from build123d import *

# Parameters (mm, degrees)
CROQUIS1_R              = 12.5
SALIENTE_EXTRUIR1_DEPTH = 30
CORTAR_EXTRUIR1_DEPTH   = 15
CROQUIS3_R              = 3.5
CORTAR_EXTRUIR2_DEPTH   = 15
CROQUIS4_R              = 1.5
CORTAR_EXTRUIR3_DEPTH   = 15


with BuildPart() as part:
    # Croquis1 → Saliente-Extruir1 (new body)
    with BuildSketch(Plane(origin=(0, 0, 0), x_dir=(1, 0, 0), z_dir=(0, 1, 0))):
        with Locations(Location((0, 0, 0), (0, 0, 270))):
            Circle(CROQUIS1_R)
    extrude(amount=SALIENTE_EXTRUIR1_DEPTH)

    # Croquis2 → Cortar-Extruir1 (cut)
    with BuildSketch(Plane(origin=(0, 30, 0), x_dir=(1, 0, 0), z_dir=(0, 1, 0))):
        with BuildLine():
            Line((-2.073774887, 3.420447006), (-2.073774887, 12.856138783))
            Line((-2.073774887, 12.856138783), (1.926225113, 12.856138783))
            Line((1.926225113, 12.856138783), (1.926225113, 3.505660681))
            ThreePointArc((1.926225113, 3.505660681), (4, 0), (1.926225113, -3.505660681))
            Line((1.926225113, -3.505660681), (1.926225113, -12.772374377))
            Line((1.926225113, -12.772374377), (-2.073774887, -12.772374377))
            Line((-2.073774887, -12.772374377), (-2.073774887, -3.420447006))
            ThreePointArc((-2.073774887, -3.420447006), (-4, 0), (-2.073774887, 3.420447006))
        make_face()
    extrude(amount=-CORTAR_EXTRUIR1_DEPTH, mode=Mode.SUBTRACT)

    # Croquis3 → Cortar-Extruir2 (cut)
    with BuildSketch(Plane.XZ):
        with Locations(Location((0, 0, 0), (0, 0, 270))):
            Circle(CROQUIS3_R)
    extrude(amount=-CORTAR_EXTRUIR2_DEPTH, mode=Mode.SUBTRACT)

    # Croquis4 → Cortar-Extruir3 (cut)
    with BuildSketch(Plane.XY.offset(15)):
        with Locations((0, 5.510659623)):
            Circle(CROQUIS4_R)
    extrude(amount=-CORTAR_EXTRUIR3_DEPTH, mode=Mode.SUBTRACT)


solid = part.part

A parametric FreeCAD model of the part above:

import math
import FreeCAD as App
import Part
import Sketcher
Q = App.Units.Quantity

doc = App.newDocument("Part")
body = doc.addObject("PartDesign::Body", "Body")

sketch1 = doc.addObject("Sketcher::SketchObject", "Sketch")
body.addObject(sketch1)
sketch1.AttachmentSupport = (doc.XZ_Plane, [""])
sketch1.MapMode = "FlatFace"
sketch1.addGeometry(Part.Circle(App.Vector(0, 0, 0), App.Vector(0, 0, 1), 12), False)
sketch1.addConstraint(Sketcher.Constraint("Coincident", 0, 3, -1, 1))
sketch1.addConstraint(Sketcher.Constraint("Diameter", 0, Q("25 mm")))
pad1 = doc.addObject("PartDesign::Pad", "Pad")
body.addObject(pad1)
pad1.Profile = sketch1
pad1.Length = 30
pad1.Reversed = True

sketch2 = doc.addObject("Sketcher::SketchObject", "Sketch001")
body.addObject(sketch2)
sketch2.AttachmentSupport = (doc.XZ_Plane, [""])
sketch2.MapMode = "FlatFace"
sketch2.AttachmentOffset = App.Placement(App.Vector(0, 0, -30), App.Rotation())
sketch2.addGeometry(Part.LineSegment(App.Vector(-2.1, -12.9, 0), App.Vector(-2.1, -3.4, 0)), False)
sketch2.addGeometry(Part.ArcOfCircle(Part.Circle(App.Vector(0, 0, 0), App.Vector(0, 0, 1), 4), math.radians(121), math.radians(239)), False)
sketch2.addGeometry(Part.LineSegment(App.Vector(-2.1, 3.4, 0), App.Vector(-2.1, 12.8, 0)), False)
sketch2.addGeometry(Part.LineSegment(App.Vector(-2.1, 12.8, 0), App.Vector(1.9, 12.8, 0)), False)
sketch2.addGeometry(Part.LineSegment(App.Vector(1.9, 12.8, 0), App.Vector(1.9, 3.5, 0)), False)
sketch2.addGeometry(Part.ArcOfCircle(Part.Circle(App.Vector(0, 0, 0), App.Vector(0, 0, 1), 4), math.radians(-61), math.radians(61)), False)
sketch2.addGeometry(Part.LineSegment(App.Vector(1.9, -3.5, 0), App.Vector(1.9, -12.9, 0)), False)
sketch2.addGeometry(Part.LineSegment(App.Vector(1.9, -12.9, 0), App.Vector(-2.1, -12.9, 0)), False)
sketch2.addConstraint(Sketcher.Constraint("Coincident", 0, 2, 1, 2))
sketch2.addConstraint(Sketcher.Constraint("Coincident", 1, 1, 2, 1))
sketch2.addConstraint(Sketcher.Constraint("Coincident", 2, 2, 3, 1))
sketch2.addConstraint(Sketcher.Constraint("Coincident", 3, 2, 4, 1))
sketch2.addConstraint(Sketcher.Constraint("Coincident", 4, 2, 5, 2))
sketch2.addConstraint(Sketcher.Constraint("Coincident", 5, 1, 6, 1))
sketch2.addConstraint(Sketcher.Constraint("Coincident", 6, 2, 7, 1))
sketch2.addConstraint(Sketcher.Constraint("Coincident", 7, 2, 0, 1))
sketch2.addConstraint(Sketcher.Constraint("Vertical", 0))
sketch2.addConstraint(Sketcher.Constraint("Vertical", 2))
sketch2.addConstraint(Sketcher.Constraint("Horizontal", 3))
sketch2.addConstraint(Sketcher.Constraint("Vertical", 4))
sketch2.addConstraint(Sketcher.Constraint("Vertical", 6))
sketch2.addConstraint(Sketcher.Constraint("Horizontal", 7))
sketch2.addConstraint(Sketcher.Constraint("Coincident", 1, 3, -1, 1))
sketch2.addConstraint(Sketcher.Constraint("Coincident", 5, 3, -1, 1))
sketch2.addConstraint(Sketcher.Constraint("Equal", 1, 5))
sketch2.addConstraint(Sketcher.Constraint("Vertical", 0, 2, 1, 1))
sketch2.addConstraint(Sketcher.Constraint("Vertical", 4, 2, 5, 1))
sketch2.addConstraint(Sketcher.Constraint("Radius", 1, Q("4 mm")))
sketch2.addConstraint(Sketcher.Constraint("DistanceX", 3, 1, 3, 2, Q("4 mm")))
sketch2.addConstraint(Sketcher.Constraint("DistanceY", 0, 1, 0, 2, Q("9.435692 mm")))
sketch2.addConstraint(Sketcher.Constraint("DistanceY", 6, 2, 6, 1, Q("9.350478 mm")))
sketch2.addConstraint(Sketcher.Constraint("DistanceY", 2, 1, 2, 2, Q("9.351927 mm")))
pocket1 = doc.addObject("PartDesign::Pocket", "Pocket")
body.addObject(pocket1)
pocket1.Profile = sketch2
pocket1.Length = 15
pocket1.Reversed = True

sketch3 = doc.addObject("Sketcher::SketchObject", "Sketch002")
body.addObject(sketch3)
sketch3.AttachmentSupport = (doc.XZ_Plane, [""])
sketch3.MapMode = "FlatFace"
sketch3.addGeometry(Part.Circle(App.Vector(0, 0, 0), App.Vector(0, 0, 1), 3.5), False)
sketch3.addConstraint(Sketcher.Constraint("Coincident", 0, 3, -1, 1))
sketch3.addConstraint(Sketcher.Constraint("Diameter", 0, Q("7 mm")))
pocket2 = doc.addObject("PartDesign::Pocket", "Pocket001")
body.addObject(pocket2)
pocket2.Profile = sketch3
pocket2.Length = 15

sketch4 = doc.addObject("Sketcher::SketchObject", "Sketch003")
body.addObject(sketch4)
sketch4.AttachmentSupport = (doc.XY_Plane, [""])
sketch4.MapMode = "FlatFace"
sketch4.AttachmentOffset = App.Placement(App.Vector(0, 0, 15), App.Rotation())
sketch4.addGeometry(Part.Circle(App.Vector(0, 5.5, 0), App.Vector(0, 0, 1), 1.5), False)
sketch4.addConstraint(Sketcher.Constraint("PointOnObject", 0, 3, -2))
sketch4.addConstraint(Sketcher.Constraint("Diameter", 0, Q("3 mm")))
sketch4.addConstraint(Sketcher.Constraint("DistanceY", -1, 1, 0, 3, Q("5.51066 mm")))
pocket3 = doc.addObject("PartDesign::Pocket", "Pocket002")
body.addObject(pocket3)
pocket3.Profile = sketch4
pocket3.Length = 15

doc.recompute()
